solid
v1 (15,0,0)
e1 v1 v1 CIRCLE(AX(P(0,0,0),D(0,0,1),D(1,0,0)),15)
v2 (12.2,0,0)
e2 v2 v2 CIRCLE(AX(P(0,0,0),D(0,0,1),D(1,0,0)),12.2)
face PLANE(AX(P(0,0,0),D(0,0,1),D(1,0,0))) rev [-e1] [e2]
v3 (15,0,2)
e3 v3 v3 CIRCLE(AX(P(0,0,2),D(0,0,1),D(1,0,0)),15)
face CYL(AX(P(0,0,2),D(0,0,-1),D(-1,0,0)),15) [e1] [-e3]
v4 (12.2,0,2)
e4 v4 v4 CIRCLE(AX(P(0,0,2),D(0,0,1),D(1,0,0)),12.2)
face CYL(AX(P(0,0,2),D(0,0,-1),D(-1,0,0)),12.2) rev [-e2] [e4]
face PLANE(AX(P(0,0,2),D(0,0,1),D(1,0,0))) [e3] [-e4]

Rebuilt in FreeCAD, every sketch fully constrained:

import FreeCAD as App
import Part
import Sketcher

V = App.Vector
Q = App.Units.Quantity

doc = App.newDocument("Part")
body = doc.addObject("PartDesign::Body", "Body")

sketch1 = body.newObject("Sketcher::SketchObject", "Sketch")
sketch1.AttachmentSupport = (doc.getObject("XY_Plane"), [""])
sketch1.MapMode = "FlatFace"
sketch1.addGeometry([
    Part.Circle(V(0, 0, 0), V(0, 0, 1), 15),
    Part.Circle(V(0, 0, 0), V(0, 0, 1), 12.2),
], False)
sketch1.addConstraint([
    Sketcher.Constraint("Coincident", 0, 3, -1, 1),
    Sketcher.Constraint("Coincident", 1, 3, -1, 1),
    Sketcher.Constraint("Diameter", 0, Q("30 mm")),
    Sketcher.Constraint("Diameter", 1, Q("24.4 mm")),
])
pad1 = body.newObject("PartDesign::Pad", "Pad")
pad1.Profile = sketch1
pad1.Length = 2

doc.recompute()
